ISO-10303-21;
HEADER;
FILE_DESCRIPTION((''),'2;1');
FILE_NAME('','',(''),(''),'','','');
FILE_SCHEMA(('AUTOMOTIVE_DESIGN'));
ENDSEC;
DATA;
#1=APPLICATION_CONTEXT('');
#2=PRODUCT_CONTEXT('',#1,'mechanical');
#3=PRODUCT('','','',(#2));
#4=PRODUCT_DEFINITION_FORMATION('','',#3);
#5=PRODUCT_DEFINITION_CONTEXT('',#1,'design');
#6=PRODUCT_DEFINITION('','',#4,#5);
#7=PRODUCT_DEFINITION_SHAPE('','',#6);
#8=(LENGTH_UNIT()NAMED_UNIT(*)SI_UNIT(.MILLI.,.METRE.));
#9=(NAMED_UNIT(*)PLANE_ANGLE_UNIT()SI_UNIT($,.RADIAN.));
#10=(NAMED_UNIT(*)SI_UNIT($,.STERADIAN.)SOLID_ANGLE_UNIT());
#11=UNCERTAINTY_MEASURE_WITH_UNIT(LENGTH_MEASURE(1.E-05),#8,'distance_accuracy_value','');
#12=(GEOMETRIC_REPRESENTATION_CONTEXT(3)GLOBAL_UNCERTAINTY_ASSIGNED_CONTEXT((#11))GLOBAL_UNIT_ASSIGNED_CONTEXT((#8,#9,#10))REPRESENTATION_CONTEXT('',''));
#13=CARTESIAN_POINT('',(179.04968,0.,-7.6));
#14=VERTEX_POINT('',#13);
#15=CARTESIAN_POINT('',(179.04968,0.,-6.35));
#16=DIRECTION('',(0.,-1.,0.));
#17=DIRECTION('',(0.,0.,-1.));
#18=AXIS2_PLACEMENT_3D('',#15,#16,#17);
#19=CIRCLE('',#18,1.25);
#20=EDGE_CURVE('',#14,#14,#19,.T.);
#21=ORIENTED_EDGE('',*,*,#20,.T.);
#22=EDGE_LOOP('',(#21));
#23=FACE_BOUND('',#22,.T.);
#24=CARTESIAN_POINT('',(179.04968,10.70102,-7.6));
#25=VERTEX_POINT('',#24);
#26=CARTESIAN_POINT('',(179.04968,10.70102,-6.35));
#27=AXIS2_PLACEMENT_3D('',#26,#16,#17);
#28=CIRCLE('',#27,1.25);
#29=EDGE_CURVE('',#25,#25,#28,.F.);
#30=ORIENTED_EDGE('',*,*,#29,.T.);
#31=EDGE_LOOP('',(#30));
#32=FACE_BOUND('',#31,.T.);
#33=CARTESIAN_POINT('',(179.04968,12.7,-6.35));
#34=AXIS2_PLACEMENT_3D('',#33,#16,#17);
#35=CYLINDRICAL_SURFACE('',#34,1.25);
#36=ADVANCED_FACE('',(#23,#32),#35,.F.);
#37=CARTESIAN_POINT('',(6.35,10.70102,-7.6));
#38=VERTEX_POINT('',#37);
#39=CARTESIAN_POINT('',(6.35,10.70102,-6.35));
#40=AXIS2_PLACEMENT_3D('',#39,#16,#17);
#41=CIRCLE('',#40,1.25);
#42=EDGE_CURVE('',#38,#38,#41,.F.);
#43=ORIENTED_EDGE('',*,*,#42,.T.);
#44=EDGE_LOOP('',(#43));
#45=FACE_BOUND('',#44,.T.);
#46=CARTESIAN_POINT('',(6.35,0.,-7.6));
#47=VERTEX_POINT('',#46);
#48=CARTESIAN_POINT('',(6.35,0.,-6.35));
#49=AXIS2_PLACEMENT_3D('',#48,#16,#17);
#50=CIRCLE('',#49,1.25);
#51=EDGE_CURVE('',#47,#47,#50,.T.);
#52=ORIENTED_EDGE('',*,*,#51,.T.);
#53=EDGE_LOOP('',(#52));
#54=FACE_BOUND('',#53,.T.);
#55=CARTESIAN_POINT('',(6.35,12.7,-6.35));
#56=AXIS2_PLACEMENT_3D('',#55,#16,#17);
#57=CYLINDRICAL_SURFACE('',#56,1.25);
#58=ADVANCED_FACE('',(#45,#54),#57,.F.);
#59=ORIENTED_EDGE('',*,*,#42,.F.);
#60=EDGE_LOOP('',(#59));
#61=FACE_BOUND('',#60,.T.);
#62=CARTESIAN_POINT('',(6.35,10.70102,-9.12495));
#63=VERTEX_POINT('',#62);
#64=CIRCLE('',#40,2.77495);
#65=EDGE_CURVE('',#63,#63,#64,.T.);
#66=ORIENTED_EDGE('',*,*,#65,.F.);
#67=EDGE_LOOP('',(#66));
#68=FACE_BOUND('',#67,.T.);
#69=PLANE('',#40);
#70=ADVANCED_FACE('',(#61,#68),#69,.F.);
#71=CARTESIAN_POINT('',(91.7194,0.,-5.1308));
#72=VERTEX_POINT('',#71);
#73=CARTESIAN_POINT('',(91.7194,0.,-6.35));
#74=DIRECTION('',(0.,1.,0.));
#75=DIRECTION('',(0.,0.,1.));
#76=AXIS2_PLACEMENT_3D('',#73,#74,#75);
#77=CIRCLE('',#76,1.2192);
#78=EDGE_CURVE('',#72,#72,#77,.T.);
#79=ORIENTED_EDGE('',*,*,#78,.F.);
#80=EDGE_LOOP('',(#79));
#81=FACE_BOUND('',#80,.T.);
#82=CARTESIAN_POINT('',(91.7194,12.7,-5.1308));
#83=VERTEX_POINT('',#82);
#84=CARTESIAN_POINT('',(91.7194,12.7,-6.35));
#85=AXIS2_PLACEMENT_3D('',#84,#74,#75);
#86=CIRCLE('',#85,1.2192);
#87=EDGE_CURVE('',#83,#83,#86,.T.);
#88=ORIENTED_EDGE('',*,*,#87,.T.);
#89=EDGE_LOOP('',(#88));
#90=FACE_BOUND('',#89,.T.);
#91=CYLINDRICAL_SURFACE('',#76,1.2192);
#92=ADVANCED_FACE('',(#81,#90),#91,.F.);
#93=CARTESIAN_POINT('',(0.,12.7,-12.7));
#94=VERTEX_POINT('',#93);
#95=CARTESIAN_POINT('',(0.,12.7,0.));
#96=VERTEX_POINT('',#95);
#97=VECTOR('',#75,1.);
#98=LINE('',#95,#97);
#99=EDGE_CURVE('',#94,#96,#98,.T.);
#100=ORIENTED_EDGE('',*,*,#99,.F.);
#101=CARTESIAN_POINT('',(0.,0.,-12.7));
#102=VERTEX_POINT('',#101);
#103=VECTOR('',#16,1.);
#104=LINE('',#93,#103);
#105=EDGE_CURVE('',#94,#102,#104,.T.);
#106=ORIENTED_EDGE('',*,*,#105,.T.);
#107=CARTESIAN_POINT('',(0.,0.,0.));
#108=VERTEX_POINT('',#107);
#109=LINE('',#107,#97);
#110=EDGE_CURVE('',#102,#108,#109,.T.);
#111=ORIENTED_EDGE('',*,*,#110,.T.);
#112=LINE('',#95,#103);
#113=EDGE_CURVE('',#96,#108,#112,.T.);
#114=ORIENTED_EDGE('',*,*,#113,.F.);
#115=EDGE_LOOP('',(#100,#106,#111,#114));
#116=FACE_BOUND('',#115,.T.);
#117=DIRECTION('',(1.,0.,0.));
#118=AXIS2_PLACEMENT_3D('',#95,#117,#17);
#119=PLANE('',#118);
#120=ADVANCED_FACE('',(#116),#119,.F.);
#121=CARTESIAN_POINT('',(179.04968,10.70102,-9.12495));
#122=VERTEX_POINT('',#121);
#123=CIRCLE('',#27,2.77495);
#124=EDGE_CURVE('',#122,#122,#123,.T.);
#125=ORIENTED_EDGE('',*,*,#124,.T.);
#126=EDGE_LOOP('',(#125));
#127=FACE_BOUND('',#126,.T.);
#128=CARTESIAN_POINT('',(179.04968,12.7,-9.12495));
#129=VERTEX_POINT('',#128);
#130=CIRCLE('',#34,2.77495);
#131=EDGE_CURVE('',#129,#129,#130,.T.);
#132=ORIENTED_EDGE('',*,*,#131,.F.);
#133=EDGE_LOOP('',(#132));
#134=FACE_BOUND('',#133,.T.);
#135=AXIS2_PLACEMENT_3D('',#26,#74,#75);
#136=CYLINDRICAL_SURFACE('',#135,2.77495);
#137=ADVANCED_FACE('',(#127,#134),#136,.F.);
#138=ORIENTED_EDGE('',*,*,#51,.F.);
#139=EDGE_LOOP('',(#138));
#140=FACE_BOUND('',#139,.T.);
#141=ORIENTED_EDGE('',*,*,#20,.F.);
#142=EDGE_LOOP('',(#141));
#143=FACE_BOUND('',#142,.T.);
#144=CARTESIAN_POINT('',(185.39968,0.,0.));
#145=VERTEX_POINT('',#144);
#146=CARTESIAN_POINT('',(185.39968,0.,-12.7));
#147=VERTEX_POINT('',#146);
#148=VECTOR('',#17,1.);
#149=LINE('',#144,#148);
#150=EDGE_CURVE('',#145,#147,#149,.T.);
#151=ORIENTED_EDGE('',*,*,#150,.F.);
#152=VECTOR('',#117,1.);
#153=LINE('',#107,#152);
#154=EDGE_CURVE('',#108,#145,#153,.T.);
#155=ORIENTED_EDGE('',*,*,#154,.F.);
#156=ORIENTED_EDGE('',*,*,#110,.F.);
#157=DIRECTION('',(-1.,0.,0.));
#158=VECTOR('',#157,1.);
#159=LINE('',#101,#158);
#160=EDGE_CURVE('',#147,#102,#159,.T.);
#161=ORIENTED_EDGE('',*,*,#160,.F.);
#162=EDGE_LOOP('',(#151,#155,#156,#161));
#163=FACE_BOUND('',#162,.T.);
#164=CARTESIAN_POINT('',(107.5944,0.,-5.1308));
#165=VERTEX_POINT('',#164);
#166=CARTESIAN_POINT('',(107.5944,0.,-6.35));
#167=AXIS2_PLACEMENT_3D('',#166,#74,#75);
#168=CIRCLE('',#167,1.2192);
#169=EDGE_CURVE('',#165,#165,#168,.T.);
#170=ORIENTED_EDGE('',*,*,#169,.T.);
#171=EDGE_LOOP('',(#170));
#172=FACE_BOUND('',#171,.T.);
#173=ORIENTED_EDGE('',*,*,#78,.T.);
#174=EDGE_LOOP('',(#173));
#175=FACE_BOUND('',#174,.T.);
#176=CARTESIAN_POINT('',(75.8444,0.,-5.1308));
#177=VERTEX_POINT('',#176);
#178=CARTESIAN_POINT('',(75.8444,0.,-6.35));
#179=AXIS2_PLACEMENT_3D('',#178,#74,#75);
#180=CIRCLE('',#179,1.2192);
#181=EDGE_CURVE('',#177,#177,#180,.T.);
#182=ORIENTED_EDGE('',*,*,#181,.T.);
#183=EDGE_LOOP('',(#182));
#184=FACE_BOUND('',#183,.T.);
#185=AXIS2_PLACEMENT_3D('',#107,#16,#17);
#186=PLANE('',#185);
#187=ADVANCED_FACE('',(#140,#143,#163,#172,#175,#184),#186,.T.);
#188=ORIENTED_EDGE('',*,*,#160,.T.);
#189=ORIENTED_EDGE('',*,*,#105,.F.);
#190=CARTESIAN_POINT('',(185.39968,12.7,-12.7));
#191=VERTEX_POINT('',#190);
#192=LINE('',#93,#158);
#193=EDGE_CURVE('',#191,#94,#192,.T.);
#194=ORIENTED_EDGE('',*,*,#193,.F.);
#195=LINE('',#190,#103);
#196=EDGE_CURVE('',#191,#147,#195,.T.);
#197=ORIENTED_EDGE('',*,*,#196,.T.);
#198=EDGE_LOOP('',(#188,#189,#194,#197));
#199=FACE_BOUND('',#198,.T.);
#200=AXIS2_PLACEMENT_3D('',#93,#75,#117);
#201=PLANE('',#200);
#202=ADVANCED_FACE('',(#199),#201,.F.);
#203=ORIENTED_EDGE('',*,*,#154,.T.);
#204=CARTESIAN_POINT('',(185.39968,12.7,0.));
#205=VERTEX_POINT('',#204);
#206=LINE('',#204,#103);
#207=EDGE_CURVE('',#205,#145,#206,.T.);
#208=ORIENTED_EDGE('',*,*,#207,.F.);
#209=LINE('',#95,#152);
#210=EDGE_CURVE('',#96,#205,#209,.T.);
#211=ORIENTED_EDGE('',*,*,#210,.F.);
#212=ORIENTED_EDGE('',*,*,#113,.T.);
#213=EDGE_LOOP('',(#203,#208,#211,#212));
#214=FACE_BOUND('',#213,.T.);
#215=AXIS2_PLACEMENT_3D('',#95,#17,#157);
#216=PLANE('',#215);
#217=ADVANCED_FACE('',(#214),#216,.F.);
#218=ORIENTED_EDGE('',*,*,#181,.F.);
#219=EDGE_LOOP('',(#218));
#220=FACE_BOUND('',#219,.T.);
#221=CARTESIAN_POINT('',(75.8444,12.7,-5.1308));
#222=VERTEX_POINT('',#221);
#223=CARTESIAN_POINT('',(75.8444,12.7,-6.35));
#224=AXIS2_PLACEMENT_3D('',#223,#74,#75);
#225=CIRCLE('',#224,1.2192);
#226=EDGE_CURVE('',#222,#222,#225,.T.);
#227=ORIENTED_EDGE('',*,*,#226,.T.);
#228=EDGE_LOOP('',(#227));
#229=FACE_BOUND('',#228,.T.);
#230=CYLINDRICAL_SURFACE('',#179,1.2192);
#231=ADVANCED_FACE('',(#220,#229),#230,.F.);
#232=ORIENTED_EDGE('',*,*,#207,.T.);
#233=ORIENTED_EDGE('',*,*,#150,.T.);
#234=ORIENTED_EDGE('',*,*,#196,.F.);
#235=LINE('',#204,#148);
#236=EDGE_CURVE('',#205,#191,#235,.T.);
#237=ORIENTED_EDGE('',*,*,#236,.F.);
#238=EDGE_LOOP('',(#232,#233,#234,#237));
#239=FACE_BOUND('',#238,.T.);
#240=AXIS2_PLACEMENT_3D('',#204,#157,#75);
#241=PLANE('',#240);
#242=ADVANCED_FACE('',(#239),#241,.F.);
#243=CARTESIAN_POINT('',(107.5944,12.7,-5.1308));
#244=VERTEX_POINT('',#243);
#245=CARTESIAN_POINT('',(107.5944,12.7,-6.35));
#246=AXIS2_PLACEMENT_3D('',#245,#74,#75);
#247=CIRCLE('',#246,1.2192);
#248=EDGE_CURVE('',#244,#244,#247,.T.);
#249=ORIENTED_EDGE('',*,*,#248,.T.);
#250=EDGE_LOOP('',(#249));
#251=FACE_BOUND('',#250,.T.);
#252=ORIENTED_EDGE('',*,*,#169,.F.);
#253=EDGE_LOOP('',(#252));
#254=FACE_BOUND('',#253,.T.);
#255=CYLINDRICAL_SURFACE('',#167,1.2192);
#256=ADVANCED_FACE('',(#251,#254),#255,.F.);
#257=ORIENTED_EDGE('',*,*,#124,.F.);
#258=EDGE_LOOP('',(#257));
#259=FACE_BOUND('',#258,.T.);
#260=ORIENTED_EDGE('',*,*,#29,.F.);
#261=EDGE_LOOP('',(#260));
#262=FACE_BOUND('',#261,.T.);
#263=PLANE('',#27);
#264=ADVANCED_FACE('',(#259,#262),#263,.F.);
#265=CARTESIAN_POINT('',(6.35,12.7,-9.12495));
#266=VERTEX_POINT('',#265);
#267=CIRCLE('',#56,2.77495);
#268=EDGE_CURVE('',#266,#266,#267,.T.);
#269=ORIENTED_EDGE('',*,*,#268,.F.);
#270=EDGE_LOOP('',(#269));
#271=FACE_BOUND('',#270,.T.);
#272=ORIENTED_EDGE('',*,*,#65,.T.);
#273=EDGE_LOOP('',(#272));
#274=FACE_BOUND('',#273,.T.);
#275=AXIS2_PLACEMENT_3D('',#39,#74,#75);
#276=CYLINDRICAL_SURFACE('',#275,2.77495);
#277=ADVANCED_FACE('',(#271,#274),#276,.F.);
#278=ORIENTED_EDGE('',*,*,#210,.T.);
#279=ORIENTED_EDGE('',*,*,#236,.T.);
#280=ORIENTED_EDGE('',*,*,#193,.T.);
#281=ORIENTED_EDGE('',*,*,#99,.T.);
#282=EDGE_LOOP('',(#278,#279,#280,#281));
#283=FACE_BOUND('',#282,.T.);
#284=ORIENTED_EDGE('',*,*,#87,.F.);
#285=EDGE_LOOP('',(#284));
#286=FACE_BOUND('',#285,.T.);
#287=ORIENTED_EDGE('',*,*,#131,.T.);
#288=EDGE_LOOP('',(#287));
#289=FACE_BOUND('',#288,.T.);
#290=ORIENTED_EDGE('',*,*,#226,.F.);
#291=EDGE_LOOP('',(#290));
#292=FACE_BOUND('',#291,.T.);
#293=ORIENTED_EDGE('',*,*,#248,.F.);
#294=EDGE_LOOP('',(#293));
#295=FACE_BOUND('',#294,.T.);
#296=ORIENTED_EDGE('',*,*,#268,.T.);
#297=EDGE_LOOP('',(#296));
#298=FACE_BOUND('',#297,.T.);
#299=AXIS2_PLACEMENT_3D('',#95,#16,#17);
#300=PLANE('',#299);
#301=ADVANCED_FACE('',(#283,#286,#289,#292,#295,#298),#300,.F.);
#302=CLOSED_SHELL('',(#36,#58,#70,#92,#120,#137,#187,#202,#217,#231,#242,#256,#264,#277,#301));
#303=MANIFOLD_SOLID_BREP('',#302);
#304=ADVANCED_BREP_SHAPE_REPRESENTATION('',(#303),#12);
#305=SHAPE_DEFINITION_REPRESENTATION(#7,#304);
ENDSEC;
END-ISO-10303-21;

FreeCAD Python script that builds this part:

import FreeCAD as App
import Part
import Sketcher
Q = App.Units.Quantity


def add_polygon(sketch, points):
    """Adds a closed chain of lines whose ends are joined by coincident constraints."""
    first, n = sketch.GeometryCount, len(points)
    for a, b in zip(points, points[1:] + points[:1]):
        sketch.addGeometry(Part.LineSegment(App.Vector(*a, 0), App.Vector(*b, 0)), False)
    for i in range(n):
        sketch.addConstraint(Sketcher.Constraint("Coincident", first + i, 2, first + (i + 1) % n, 1))

doc = App.newDocument("Part")
body = doc.addObject("PartDesign::Body", "Body")

# Sketch on XZ plane
sketch1 = doc.addObject("Sketcher::SketchObject", "Sketch")
body.addObject(sketch1)
sketch1.AttachmentSupport = (doc.XZ_Plane, [""])
sketch1.MapMode = "FlatFace"
add_polygon(sketch1, [(0, -13), (0, 0), (185, 0), (185, -13)])  # lines 0-3
sketch1.addConstraint(Sketcher.Constraint("Vertical", 0))
sketch1.addConstraint(Sketcher.Constraint("Horizontal", 1))
sketch1.addConstraint(Sketcher.Constraint("Vertical", 2))
sketch1.addConstraint(Sketcher.Constraint("Horizontal", 3))
sketch1.addConstraint(Sketcher.Constraint("Coincident", 0, 2, -1, 1))
sketch1.addConstraint(Sketcher.Constraint("DistanceY", 0, 1, 0, 2, Q("0.5 in")))
sketch1.addConstraint(Sketcher.Constraint("DistanceX", 1, 1, 1, 2, Q("7.2992 in")))
pad1 = doc.addObject("PartDesign::Pad", "Pad")
body.addObject(pad1)
pad1.Profile = sketch1
pad1.Length = Q("0.5 in")
pad1.Reversed = True

# Sketch on XZ plane
sketch2 = doc.addObject("Sketcher::SketchObject", "Sketch001")
body.addObject(sketch2)
sketch2.AttachmentSupport = (doc.XZ_Plane, [""])
sketch2.MapMode = "FlatFace"
sketch2.addGeometry(Part.Circle(App.Vector(179, -6.3, 0), App.Vector(0, 0, 1), 1.2), False)
sketch2.addGeometry(Part.Circle(App.Vector(6.3, -6.3, 0), App.Vector(0, 0, 1), 1.2), False)
sketch2.addConstraint(Sketcher.Constraint("Equal", 0, 1))
sketch2.addConstraint(Sketcher.Constraint("Horizontal", 0, 3, 1, 3))
sketch2.addConstraint(Sketcher.Constraint("Diameter", 0, 2.5))
sketch2.addConstraint(Sketcher.Constraint("DistanceY", 0, 3, -1, 1, Q("0.25 in")))
sketch2.addConstraint(Sketcher.Constraint("DistanceX", -1, 1, 1, 3, Q("0.25 in")))
sketch2.addConstraint(Sketcher.Constraint("DistanceX", -1, 1, 0, 3, Q("7.0492 in")))
pocket1 = doc.addObject("PartDesign::Pocket", "Pocket")
body.addObject(pocket1)
pocket1.Profile = sketch2
pocket1.Type = "ThroughAll"

# Sketch on XZ plane
sketch3 = doc.addObject("Sketcher::SketchObject", "Sketch002")
body.addObject(sketch3)
sketch3.AttachmentSupport = (doc.XZ_Plane, [""])
sketch3.MapMode = "FlatFace"
sketch3.AttachmentOffset = App.Placement(App.Vector(0, 0, -0.5 * 25.4), App.Rotation())
sketch3.addGeometry(Part.Circle(App.Vector(179, -6.3, 0), App.Vector(0, 0, 1), 2.8), False)
sketch3.addGeometry(Part.Circle(App.Vector(6.3, -6.3, 0), App.Vector(0, 0, 1), 2.8), False)
sketch3.addConstraint(Sketcher.Constraint("Equal", 0, 1))
sketch3.addConstraint(Sketcher.Constraint("Horizontal", 0, 3, 1, 3))
sketch3.addConstraint(Sketcher.Constraint("Diameter", 0, Q("0.2185 in")))
sketch3.addConstraint(Sketcher.Constraint("DistanceY", 0, 3, -1, 1, Q("0.25 in")))
sketch3.addConstraint(Sketcher.Constraint("DistanceX", -1, 1, 1, 3, Q("0.25 in")))
sketch3.addConstraint(Sketcher.Constraint("DistanceX", -1, 1, 0, 3, Q("7.0492 in")))
pocket2 = doc.addObject("PartDesign::Pocket", "Pocket001")
body.addObject(pocket2)
pocket2.Profile = sketch3
pocket2.Length = Q("0.0787 in")
pocket2.Reversed = True

# Sketch on XZ plane
sketch4 = doc.addObject("Sketcher::SketchObject", "Sketch003")
body.addObject(sketch4)
sketch4.AttachmentSupport = (doc.XZ_Plane, [""])
sketch4.MapMode = "FlatFace"
sketch4.AttachmentOffset = App.Placement(App.Vector(0, 0, -0.5 * 25.4), App.Rotation())
sketch4.addGeometry(Part.Circle(App.Vector(91.7, -6.3, 0), App.Vector(0, 0, 1), 1.2), False)
sketch4.addGeometry(Part.Circle(App.Vector(107.6, -6.3, 0), App.Vector(0, 0, 1), 1.2), False)
sketch4.addGeometry(Part.Circle(App.Vector(75.8, -6.3, 0), App.Vector(0, 0, 1), 1.2), False)
sketch4.addConstraint(Sketcher.Constraint("Equal", 0, 1))
sketch4.addConstraint(Sketcher.Constraint("Equal", 1, 2))
sketch4.addConstraint(Sketcher.Constraint("Horizontal", 0, 3, 1, 3))
sketch4.addConstraint(Sketcher.Constraint("Horizontal", 1, 3, 2, 3))
sketch4.addConstraint(Sketcher.Constraint("Diameter", 0, Q("0.096 in")))
sketch4.addConstraint(Sketcher.Constraint("DistanceY", 0, 3, -1, 1, Q("0.25 in")))
sketch4.addConstraint(Sketcher.Constraint("DistanceX", 2, 3, 1, 3, Q("1.25 in")))
sketch4.addConstraint(Sketcher.Constraint("DistanceX", -1, 1, 0, 3, Q("3.611 in")))
sketch4.addConstraint(Sketcher.Constraint("DistanceX", -1, 1, 1, 3, Q("4.236 in")))
pocket3 = doc.addObject("PartDesign::Pocket", "Pocket002")
body.addObject(pocket3)
pocket3.Profile = sketch4
pocket3.Type = "ThroughAll"
pocket3.Reversed = True

doc.recompute()
